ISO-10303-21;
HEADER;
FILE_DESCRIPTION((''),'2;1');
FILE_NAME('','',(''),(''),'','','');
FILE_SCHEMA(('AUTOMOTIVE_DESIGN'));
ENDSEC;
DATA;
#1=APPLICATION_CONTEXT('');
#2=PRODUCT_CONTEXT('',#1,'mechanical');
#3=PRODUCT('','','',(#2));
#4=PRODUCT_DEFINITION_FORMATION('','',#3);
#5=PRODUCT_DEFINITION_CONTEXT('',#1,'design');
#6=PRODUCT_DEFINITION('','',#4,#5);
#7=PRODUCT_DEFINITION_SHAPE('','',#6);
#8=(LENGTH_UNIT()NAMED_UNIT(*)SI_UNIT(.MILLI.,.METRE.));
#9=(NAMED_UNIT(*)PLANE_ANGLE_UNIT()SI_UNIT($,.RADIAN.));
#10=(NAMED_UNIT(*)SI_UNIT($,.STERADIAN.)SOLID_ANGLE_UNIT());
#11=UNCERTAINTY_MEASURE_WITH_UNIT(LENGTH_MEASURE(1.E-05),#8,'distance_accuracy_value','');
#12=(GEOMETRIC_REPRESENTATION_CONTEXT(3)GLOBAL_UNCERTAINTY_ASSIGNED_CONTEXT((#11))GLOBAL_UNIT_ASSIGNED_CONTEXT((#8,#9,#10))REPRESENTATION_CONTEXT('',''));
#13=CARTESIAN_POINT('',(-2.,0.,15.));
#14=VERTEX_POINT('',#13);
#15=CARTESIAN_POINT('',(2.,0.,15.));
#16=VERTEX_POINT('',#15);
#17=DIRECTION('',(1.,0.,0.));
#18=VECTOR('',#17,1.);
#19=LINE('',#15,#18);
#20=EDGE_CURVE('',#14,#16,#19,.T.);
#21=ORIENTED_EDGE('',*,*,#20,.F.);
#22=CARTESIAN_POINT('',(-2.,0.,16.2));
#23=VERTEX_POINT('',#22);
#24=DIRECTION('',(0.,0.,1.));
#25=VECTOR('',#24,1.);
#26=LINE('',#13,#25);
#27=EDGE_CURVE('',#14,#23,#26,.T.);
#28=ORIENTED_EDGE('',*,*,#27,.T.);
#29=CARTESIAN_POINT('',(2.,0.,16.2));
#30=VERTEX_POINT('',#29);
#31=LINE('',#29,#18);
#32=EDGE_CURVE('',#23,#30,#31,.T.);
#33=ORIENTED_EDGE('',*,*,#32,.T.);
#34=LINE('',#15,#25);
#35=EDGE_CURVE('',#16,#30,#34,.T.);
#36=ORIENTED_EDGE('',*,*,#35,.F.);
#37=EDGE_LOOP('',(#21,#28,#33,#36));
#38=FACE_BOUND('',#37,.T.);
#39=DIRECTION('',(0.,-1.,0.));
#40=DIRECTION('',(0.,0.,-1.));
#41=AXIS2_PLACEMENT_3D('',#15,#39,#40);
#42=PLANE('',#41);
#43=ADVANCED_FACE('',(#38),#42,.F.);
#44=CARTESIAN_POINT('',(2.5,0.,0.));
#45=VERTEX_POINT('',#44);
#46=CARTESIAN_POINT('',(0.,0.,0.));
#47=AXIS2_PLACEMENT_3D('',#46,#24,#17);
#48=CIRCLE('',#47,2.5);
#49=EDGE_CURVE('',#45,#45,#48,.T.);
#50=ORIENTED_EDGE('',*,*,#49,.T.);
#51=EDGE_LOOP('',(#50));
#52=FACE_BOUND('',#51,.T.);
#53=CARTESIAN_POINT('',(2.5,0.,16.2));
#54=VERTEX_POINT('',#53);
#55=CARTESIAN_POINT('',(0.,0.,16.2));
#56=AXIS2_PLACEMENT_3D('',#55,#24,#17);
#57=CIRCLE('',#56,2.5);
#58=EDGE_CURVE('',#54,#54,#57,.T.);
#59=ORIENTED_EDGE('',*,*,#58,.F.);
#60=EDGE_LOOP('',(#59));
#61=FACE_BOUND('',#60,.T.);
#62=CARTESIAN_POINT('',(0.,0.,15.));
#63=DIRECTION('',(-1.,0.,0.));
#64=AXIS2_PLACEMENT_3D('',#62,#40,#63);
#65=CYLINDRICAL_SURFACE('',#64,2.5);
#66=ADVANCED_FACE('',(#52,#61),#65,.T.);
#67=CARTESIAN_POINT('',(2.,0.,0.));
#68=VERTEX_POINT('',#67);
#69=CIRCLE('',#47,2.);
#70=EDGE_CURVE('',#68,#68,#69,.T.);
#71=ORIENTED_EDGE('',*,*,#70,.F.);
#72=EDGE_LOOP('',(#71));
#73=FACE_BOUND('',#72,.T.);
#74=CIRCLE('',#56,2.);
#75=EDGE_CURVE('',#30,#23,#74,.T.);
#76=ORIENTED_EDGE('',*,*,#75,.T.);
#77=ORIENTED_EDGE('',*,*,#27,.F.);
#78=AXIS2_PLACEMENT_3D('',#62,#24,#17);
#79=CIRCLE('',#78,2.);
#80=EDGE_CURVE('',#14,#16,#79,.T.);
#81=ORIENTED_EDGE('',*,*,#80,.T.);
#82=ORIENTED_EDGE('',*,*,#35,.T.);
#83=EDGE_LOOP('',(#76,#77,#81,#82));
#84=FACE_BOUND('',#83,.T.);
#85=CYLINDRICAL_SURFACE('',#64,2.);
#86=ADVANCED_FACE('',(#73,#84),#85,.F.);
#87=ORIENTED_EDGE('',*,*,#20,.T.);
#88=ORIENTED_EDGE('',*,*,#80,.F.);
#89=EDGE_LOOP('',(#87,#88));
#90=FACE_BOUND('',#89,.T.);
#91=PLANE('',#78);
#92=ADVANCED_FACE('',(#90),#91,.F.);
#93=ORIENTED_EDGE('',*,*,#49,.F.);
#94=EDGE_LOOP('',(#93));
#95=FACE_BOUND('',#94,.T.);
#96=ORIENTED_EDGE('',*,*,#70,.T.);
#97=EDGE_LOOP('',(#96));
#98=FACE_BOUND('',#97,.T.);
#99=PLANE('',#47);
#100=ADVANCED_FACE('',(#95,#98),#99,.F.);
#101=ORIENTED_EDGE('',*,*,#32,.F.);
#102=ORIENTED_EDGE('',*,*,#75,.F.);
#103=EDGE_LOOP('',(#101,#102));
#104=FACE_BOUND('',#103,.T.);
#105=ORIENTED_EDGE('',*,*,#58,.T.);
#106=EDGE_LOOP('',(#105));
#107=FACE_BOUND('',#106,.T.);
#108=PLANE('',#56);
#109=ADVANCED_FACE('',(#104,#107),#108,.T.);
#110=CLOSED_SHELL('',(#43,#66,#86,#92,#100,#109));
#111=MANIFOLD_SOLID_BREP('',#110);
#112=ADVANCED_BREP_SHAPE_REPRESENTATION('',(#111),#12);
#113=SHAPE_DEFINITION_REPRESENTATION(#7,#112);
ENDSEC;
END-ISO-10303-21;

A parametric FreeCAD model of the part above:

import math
import FreeCAD as App
import Part
import Sketcher

doc = App.newDocument("Part")
body = doc.addObject("PartDesign::Body", "Body")

# Sketch on XY plane
sketch1 = body.newObject("Sketcher::SketchObject", "Sketch")
sketch1.AttachmentSupport = (doc.getObject("XY_Plane"), [""])
sketch1.MapMode = "FlatFace"
sketch1.addGeometry([
    Part.Circle(App.Vector(0, 0, 0), App.Vector(0, 0, 1), 2.5),
    Part.Circle(App.Vector(0, 0, 0), App.Vector(0, 0, 1), 2),
], False)
sketch1.addConstraint([
    Sketcher.Constraint("Coincident", 0, 3, -1, 1),
    Sketcher.Constraint("Coincident", 1, 3, -1, 1),
    Sketcher.Constraint("Diameter", 0, 5.0),
    Sketcher.Constraint("Diameter", 1, 4.0),
])
pad1 = body.newObject("PartDesign::Pad", "Pad")
pad1.Profile = sketch1
pad1.Length = 15

# Sketch on XY plane
sketch2 = body.newObject("Sketcher::SketchObject", "Sketch001")
sketch2.AttachmentSupport = (doc.getObject("XY_Plane"), [""])
sketch2.MapMode = "FlatFace"
sketch2.AttachmentOffset = App.Placement(App.Vector(0, 0, 15), App.Rotation())
sketch2.addGeometry(Part.Circle(App.Vector(0, 0, 0), App.Vector(0, 0, 1), 2.5), False)
sketch2.addConstraint([
    Sketcher.Constraint("Coincident", 0, 3, -1, 1),
    Sketcher.Constraint("Diameter", 0, 5.0),
])
pad2 = body.newObject("PartDesign::Pad", "Pad001")
pad2.Profile = sketch2
pad2.Length = 1.2

# Sketch on XY plane
sketch3 = body.newObject("Sketcher::SketchObject", "Sketch002")
sketch3.AttachmentSupport = (doc.getObject("XY_Plane"), [""])
sketch3.MapMode = "FlatFace"
sketch3.AttachmentOffset = App.Placement(App.Vector(0, 0, 15), App.Rotation())
sketch3.addGeometry([
    Part.LineSegment(App.Vector(-2, 0, 0), App.Vector(2, 0, 0)),
    Part.ArcOfCircle(Part.Circle(App.Vector(0, 0, 0), App.Vector(0, 0, 1), 2), math.radians(0), math.radians(180)),
], False)
sketch3.addConstraint([
    Sketcher.Constraint("Coincident", 0, 1, 1, 2),
    Sketcher.Constraint("Coincident", 1, 1, 0, 2),
    Sketcher.Constraint("Horizontal", 0),
    Sketcher.Constraint("Coincident", 1, 3, -1, 1),
    Sketcher.Constraint("PointOnObject", 0, 1, -1),
    Sketcher.Constraint("Radius", 1, 2.0),
])
pocket1 = body.newObject("PartDesign::Pocket", "Pocket")
pocket1.Profile = sketch3
pocket1.Length = 1.2
pocket1.Reversed = True

doc.recompute()
